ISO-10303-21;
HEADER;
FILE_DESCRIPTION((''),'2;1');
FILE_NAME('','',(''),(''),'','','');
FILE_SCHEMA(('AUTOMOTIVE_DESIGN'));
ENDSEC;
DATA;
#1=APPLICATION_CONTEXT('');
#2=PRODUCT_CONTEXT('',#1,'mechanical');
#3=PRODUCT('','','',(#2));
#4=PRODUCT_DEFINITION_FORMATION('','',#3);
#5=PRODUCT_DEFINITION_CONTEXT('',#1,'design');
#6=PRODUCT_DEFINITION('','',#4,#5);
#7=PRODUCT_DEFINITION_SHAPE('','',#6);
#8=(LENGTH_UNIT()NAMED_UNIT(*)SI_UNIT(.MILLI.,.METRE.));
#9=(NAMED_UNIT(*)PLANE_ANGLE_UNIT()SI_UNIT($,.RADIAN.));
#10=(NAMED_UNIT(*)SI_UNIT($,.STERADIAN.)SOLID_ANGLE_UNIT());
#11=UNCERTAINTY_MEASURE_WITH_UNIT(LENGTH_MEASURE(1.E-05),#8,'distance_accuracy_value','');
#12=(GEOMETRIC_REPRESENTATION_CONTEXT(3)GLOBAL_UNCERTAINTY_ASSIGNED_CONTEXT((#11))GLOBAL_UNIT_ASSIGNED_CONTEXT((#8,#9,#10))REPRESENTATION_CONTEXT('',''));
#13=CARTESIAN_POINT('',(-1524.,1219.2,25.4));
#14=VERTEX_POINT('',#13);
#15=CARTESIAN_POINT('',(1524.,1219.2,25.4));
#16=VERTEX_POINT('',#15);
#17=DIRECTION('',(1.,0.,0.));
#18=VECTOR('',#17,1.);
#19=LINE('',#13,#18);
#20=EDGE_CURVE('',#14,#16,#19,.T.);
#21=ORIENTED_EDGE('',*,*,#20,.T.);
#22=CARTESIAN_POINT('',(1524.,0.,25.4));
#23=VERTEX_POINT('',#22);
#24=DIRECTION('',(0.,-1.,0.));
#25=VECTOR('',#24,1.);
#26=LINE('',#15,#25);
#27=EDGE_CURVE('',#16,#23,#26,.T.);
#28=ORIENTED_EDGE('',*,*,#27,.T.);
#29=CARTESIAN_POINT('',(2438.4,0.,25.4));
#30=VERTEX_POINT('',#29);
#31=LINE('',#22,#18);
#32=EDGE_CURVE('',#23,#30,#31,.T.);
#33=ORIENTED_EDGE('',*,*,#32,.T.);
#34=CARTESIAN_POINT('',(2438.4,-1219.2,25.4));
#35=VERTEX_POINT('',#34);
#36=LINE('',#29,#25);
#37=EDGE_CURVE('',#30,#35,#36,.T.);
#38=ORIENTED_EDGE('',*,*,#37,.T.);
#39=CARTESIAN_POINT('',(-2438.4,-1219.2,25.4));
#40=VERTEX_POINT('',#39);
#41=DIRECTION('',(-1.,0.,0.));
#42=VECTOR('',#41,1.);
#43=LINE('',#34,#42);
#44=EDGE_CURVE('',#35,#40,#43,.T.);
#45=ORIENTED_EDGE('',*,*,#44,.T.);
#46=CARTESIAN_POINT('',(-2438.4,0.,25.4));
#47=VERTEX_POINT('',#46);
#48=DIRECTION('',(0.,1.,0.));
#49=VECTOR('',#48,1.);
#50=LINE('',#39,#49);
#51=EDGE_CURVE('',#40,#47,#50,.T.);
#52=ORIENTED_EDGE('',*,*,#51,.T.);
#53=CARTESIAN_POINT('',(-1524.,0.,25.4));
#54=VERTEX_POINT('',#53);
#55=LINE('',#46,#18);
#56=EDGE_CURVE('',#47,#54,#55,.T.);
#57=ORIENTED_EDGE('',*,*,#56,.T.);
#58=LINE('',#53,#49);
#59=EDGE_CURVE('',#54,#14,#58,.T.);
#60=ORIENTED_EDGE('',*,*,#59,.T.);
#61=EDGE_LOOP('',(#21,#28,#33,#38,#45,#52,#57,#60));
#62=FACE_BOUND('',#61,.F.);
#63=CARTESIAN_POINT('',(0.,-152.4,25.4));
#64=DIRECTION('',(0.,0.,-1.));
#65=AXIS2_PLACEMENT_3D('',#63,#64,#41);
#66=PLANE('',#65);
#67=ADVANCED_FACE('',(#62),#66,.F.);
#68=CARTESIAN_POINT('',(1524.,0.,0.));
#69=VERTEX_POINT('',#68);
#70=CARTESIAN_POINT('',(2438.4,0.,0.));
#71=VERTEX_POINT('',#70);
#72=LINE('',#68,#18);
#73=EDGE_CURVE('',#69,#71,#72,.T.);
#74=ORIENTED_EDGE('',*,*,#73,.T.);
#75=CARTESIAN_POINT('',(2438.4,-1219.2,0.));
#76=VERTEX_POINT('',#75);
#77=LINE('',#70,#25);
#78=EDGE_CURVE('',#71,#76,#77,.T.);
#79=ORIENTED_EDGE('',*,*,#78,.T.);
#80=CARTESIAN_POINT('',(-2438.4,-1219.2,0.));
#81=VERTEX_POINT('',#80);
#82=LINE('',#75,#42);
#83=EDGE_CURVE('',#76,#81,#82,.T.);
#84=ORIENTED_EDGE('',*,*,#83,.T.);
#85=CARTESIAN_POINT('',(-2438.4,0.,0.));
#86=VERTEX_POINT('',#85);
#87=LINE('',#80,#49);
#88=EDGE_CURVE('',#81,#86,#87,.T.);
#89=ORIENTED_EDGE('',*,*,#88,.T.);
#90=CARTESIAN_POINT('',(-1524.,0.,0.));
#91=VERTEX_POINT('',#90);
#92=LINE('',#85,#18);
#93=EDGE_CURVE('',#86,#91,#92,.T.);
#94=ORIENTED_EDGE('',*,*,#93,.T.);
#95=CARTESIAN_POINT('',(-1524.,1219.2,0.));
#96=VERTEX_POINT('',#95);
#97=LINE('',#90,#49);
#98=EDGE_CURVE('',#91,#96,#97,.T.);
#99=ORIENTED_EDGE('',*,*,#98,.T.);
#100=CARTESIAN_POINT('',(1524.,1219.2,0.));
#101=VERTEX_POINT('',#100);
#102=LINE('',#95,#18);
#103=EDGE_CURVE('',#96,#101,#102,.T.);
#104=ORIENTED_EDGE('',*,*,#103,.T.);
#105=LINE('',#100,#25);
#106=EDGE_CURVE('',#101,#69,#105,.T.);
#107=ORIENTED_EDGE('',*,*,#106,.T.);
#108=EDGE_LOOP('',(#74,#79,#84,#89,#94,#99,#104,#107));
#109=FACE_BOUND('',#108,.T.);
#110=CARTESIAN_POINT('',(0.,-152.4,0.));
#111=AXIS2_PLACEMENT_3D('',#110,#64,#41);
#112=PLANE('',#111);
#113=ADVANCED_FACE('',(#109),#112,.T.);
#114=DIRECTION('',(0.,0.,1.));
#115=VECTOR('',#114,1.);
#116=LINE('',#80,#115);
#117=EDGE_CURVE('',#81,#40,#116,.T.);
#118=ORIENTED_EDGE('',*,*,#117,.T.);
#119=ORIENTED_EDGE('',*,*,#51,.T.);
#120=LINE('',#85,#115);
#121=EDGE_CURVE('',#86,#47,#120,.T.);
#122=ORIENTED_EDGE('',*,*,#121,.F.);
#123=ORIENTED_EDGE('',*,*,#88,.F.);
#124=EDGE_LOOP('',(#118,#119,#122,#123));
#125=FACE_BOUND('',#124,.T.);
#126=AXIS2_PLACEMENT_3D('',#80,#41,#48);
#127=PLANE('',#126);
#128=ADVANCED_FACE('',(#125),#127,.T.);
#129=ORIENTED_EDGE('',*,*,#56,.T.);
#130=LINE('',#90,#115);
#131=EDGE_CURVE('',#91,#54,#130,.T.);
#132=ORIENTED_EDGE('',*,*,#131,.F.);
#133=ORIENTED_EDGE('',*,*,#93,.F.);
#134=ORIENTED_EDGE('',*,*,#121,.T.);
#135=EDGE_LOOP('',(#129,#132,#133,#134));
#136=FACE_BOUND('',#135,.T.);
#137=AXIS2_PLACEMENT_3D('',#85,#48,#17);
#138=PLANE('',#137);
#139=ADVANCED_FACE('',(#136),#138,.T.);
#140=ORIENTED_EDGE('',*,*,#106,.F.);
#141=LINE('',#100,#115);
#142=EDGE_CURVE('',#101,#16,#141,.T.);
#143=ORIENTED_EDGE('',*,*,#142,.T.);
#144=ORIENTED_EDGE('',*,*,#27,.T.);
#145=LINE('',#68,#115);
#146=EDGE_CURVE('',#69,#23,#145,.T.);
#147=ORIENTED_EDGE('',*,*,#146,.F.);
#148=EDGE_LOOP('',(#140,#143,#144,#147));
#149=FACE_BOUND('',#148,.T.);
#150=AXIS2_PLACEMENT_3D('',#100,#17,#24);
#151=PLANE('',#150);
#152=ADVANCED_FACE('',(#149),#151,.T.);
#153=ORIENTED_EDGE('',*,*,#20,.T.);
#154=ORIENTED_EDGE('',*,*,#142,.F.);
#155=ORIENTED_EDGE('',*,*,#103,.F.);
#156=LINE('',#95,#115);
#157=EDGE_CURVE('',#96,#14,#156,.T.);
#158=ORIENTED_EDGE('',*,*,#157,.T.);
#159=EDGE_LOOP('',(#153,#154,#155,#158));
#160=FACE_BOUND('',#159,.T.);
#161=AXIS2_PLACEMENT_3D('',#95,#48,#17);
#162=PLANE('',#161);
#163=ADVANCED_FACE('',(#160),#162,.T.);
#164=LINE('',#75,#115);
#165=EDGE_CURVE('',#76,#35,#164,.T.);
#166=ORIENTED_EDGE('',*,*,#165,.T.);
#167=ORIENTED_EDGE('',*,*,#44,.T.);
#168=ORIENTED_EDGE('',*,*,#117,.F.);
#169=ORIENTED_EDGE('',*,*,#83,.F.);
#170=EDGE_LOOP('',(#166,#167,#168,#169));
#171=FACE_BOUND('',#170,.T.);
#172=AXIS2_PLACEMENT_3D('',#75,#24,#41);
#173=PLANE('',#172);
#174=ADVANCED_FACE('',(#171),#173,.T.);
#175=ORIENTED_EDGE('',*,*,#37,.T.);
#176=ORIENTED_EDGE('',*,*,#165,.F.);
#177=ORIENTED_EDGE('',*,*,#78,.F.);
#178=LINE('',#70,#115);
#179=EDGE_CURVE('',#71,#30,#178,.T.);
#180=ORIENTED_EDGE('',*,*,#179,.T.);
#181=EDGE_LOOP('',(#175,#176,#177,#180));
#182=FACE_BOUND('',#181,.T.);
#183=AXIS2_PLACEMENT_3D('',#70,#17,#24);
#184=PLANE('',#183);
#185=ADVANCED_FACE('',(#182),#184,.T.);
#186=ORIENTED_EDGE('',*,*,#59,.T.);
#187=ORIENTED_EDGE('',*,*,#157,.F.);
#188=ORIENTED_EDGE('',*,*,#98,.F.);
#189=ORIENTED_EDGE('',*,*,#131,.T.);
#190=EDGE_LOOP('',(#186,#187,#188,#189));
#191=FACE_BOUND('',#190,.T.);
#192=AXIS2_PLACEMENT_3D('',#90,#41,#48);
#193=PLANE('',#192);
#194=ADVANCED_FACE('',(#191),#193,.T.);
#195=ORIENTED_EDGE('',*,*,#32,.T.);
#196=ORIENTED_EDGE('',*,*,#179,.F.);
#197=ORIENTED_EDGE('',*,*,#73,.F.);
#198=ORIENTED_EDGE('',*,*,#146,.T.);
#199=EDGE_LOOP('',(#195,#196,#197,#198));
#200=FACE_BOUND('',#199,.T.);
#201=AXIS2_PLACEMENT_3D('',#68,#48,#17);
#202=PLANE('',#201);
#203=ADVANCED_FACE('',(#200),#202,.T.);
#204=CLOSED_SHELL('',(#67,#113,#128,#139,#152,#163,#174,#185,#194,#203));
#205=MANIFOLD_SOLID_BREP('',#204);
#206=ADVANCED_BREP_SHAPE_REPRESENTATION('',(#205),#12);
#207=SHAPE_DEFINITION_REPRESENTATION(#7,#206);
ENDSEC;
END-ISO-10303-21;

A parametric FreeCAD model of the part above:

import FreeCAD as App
import Part
import Sketcher

V = App.Vector
Q = App.Units.Quantity

doc = App.newDocument("Part")
body = doc.addObject("PartDesign::Body", "Body")

sketch1 = body.newObject("Sketcher::SketchObject", "Sketch")
sketch1.AttachmentSupport = (doc.getObject("XY_Plane"), [""])
sketch1.MapMode = "FlatFace"
sketch1.addGeometry([
    Part.LineSegment(V(-2438, 0, 0), V(-2438, -1219, 0)),
    Part.LineSegment(V(-2438, -1219, 0), V(2438, -1219, 0)),
    Part.LineSegment(V(2438, -1219, 0), V(2438, 0, 0)),
    Part.LineSegment(V(2438, 0, 0), V(1524, 0, 0)),
    Part.LineSegment(V(1524, 0, 0), V(1524, 1219, 0)),
    Part.LineSegment(V(1524, 1219, 0), V(-1524, 1219, 0)),
    Part.LineSegment(V(-1524, 1219, 0), V(-1524, 0, 0)),
    Part.LineSegment(V(-1524, 0, 0), V(-2438, 0, 0)),
], False)
sketch1.addConstraint([
    Sketcher.Constraint("Coincident", 0, 2, 1, 1),
    Sketcher.Constraint("Coincident", 1, 2, 2, 1),
    Sketcher.Constraint("Coincident", 2, 2, 3, 1),
    Sketcher.Constraint("Coincident", 3, 2, 4, 1),
    Sketcher.Constraint("Coincident", 4, 2, 5, 1),
    Sketcher.Constraint("Coincident", 5, 2, 6, 1),
    Sketcher.Constraint("Coincident", 6, 2, 7, 1),
    Sketcher.Constraint("Coincident", 7, 2, 0, 1),
    Sketcher.Constraint("Vertical", 0),
    Sketcher.Constraint("Horizontal", 1),
    Sketcher.Constraint("Vertical", 2),
    Sketcher.Constraint("Horizontal", 3),
    Sketcher.Constraint("Vertical", 4),
    Sketcher.Constraint("Horizontal", 5),
    Sketcher.Constraint("Vertical", 6),
    Sketcher.Constraint("Horizontal", 7),
    Sketcher.Constraint("Symmetric", 3, 2, 6, 2, -1, 1),
    Sketcher.Constraint("Symmetric", 2, 2, 7, 2, -2),
    Sketcher.Constraint("Equal", 2, 4),
    Sketcher.Constraint("DistanceX", 1, 1, 1, 2, Q("192 in")),
    Sketcher.Constraint("DistanceX", 3, 2, 3, 1, Q("36 in")),
    Sketcher.Constraint("DistanceY", 0, 2, 0, 1, Q("48 in")),
])
pad1 = body.newObject("PartDesign::Pad", "Pad")
pad1.Profile = sketch1
pad1.Length = Q("1 in")

doc.recompute()
